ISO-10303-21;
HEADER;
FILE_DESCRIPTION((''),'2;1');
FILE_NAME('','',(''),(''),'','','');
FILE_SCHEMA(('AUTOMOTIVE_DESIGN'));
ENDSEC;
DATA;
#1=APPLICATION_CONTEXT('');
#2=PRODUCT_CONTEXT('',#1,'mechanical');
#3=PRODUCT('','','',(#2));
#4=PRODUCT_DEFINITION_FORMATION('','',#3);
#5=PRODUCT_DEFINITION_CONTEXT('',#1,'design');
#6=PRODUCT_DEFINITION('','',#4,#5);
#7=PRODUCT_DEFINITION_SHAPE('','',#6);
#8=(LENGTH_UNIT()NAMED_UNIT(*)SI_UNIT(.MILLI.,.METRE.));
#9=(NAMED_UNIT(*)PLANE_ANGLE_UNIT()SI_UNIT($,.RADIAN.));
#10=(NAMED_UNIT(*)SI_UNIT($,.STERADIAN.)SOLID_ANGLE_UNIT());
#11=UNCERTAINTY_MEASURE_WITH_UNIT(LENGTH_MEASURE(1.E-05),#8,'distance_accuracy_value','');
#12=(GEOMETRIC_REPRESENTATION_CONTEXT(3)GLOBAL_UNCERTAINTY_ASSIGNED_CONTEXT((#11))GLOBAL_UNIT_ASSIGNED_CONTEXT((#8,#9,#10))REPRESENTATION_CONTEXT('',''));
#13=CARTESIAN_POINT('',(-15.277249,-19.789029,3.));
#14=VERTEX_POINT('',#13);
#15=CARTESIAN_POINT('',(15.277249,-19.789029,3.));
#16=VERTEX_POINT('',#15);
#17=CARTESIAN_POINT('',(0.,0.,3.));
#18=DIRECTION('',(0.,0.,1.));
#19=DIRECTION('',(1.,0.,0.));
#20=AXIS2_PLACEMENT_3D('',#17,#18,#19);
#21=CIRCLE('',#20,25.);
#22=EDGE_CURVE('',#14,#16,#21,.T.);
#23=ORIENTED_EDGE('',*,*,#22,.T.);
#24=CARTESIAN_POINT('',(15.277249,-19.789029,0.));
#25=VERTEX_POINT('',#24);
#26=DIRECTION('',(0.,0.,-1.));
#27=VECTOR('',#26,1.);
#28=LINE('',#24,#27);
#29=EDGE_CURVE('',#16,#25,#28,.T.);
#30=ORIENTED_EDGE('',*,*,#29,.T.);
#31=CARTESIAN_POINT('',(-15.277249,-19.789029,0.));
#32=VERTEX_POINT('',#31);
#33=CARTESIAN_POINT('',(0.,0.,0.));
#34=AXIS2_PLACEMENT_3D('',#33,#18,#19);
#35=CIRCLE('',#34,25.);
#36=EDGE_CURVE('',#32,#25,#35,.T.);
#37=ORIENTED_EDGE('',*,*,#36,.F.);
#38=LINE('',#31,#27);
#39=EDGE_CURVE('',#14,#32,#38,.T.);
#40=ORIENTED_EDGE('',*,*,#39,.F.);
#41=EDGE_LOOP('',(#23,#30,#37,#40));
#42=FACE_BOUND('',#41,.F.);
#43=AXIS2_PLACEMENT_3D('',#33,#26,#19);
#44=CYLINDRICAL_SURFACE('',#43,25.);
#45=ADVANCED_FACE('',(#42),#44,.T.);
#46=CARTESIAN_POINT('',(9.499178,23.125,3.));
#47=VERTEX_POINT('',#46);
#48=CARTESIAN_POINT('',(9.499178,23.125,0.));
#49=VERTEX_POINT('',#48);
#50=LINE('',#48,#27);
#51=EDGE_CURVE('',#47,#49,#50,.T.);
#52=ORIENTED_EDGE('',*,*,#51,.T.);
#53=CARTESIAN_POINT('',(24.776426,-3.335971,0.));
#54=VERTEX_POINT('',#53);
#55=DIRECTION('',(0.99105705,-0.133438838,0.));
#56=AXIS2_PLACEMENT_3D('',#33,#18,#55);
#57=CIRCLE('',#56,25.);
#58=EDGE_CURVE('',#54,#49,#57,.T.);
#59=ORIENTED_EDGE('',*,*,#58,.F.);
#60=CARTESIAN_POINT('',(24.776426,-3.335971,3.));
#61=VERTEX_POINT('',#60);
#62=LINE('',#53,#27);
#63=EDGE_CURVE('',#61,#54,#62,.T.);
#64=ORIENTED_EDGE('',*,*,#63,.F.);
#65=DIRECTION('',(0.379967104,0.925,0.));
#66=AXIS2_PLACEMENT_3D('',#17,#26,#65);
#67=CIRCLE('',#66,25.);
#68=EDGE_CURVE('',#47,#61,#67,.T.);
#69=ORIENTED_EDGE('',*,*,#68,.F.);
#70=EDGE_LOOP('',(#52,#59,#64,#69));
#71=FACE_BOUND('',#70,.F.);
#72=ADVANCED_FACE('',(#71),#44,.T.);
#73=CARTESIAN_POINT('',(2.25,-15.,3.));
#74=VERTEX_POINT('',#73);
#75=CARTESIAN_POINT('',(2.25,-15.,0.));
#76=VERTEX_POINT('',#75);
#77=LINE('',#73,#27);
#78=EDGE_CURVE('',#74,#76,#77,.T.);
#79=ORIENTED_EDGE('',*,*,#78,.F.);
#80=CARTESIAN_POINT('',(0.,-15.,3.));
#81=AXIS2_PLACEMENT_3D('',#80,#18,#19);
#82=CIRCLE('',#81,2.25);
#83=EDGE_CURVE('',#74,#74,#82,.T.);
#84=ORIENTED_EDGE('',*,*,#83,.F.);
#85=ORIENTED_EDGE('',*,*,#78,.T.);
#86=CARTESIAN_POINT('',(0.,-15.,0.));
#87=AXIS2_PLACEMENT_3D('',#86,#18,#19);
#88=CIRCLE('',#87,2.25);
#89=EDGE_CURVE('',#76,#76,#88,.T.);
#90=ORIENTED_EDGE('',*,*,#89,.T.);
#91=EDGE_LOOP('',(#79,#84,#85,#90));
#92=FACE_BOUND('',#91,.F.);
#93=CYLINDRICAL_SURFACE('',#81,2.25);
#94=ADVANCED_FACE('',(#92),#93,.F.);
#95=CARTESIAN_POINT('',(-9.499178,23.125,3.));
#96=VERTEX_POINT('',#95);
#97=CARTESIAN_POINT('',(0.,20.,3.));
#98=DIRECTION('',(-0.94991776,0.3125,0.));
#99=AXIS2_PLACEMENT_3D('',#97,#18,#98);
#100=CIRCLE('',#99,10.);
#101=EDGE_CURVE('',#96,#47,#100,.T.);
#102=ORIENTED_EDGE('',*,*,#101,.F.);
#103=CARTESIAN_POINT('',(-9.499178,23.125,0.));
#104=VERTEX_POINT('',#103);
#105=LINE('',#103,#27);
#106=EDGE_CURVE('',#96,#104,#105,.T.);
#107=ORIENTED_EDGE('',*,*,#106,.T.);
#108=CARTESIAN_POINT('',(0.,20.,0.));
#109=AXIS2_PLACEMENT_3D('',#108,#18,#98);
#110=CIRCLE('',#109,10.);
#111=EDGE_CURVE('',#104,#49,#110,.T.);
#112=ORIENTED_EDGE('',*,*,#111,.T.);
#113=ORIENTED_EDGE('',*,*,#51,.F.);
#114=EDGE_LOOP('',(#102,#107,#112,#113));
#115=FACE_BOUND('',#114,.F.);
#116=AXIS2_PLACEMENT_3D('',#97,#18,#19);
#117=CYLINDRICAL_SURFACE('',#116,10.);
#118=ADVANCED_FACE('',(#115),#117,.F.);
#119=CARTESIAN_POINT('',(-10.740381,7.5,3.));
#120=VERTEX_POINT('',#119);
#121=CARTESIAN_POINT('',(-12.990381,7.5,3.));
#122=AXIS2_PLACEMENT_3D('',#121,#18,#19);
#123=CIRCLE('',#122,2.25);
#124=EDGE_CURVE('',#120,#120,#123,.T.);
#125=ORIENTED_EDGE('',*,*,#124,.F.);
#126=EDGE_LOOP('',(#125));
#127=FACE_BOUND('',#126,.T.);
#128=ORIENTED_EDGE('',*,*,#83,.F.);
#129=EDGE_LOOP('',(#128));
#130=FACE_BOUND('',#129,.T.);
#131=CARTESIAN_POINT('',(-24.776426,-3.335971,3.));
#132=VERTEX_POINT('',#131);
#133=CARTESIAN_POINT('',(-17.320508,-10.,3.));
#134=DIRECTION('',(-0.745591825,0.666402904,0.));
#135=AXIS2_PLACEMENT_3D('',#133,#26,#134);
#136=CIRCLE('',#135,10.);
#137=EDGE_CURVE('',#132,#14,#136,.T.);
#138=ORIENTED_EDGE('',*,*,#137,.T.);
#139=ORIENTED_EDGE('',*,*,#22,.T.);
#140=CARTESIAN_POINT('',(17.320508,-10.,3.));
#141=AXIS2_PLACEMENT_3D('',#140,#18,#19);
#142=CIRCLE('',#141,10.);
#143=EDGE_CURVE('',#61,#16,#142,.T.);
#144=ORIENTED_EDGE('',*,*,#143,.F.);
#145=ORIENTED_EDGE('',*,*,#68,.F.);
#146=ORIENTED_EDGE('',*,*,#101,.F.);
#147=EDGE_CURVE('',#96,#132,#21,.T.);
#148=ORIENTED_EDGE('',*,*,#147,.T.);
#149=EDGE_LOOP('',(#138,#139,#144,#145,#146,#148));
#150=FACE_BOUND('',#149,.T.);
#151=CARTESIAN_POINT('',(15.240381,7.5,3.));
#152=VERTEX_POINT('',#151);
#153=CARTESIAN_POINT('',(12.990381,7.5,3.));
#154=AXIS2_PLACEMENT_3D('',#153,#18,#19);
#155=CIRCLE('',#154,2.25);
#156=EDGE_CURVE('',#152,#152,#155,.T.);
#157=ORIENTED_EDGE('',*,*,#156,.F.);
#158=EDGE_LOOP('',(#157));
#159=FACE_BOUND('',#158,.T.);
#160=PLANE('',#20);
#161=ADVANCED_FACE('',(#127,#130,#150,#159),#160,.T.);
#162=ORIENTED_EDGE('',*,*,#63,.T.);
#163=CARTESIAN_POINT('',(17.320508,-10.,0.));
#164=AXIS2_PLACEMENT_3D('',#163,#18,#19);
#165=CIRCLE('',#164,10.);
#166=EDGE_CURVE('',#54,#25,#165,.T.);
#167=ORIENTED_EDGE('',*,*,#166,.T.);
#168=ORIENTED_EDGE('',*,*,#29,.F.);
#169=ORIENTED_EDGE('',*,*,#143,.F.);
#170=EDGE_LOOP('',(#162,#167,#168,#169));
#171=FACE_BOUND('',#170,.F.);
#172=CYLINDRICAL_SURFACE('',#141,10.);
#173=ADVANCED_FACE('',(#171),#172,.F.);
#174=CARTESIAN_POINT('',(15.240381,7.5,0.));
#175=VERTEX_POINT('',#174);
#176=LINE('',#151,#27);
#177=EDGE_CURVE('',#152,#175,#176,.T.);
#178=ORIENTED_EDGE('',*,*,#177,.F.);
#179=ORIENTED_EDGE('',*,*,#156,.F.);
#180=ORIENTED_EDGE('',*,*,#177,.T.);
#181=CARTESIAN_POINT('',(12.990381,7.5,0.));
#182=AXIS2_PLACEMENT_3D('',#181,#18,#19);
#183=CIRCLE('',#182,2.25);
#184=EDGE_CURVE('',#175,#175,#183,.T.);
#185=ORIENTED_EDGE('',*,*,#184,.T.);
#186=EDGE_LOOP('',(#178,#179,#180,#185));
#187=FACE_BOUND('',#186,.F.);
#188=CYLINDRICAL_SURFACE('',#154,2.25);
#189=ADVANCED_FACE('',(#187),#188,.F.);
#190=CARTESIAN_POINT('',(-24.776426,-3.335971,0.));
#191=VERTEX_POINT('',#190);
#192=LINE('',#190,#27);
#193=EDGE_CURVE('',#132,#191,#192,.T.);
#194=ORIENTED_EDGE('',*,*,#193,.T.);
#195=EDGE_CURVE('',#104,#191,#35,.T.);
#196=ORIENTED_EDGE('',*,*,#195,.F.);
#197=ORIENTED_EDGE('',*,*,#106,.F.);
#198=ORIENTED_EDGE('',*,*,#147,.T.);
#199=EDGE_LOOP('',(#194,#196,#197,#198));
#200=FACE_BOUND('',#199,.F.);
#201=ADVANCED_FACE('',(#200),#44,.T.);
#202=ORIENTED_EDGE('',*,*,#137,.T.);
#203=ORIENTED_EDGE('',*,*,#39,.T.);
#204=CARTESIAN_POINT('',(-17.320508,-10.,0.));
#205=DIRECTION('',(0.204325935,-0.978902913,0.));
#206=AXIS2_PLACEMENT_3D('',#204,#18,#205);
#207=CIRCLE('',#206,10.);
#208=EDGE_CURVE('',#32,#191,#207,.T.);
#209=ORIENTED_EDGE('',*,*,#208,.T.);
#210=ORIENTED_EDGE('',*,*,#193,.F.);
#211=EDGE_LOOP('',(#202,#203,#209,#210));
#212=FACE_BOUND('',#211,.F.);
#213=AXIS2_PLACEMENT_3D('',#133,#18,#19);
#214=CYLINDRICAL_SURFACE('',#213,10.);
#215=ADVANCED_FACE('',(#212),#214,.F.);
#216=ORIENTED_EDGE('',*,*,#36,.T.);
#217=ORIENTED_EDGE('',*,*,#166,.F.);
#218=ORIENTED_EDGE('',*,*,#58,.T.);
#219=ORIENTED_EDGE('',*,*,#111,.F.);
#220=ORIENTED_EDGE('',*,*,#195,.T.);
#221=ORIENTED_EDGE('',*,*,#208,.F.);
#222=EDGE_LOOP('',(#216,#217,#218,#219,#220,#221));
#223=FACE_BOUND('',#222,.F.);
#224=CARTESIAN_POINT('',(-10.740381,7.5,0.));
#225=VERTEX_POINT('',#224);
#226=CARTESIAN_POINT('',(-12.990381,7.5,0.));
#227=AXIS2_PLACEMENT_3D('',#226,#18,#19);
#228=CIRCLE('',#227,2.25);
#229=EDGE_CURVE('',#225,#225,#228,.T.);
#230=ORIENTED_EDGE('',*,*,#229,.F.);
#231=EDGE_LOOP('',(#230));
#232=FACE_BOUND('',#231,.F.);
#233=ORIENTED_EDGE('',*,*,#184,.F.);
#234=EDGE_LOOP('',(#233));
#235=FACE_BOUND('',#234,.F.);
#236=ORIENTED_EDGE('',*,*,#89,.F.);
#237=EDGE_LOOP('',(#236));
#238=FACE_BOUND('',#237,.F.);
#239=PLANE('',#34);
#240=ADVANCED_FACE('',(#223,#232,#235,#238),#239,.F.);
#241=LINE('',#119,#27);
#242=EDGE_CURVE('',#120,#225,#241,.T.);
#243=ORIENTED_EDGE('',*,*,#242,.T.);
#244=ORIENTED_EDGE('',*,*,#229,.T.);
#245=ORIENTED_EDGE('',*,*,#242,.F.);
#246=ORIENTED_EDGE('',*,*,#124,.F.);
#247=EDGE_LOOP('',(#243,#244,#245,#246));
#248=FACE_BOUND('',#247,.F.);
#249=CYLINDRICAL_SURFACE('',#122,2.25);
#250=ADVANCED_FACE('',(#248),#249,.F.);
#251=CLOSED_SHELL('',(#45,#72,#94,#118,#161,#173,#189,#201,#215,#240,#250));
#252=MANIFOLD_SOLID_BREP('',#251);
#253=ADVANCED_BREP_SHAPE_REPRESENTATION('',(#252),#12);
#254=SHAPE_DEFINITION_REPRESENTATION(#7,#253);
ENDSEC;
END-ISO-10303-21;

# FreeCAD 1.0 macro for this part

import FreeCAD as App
import Part
import Sketcher
Q = App.Units.Quantity

doc = App.newDocument("Part")
body = doc.addObject("PartDesign::Body", "Body")

# Sketch on XY plane
sketch1 = body.newObject("Sketcher::SketchObject", "Sketch")
sketch1.AttachmentSupport = (doc.getObject("XY_Plane"), [""])
sketch1.MapMode = "FlatFace"
sketch1.addGeometry(Part.Circle(App.Vector(0, 0, 0), App.Vector(0, 0, 1), 25), False)
sketch1.addConstraint(Sketcher.Constraint("Coincident", 0, 3, -1, 1))
sketch1.addConstraint(Sketcher.Constraint("Diameter", 0, Q("50 mm")))
pad1 = body.newObject("PartDesign::Pad", "Pad")
pad1.Profile = sketch1
pad1.Length = 3

# Sketch on XY plane
sketch2 = body.newObject("Sketcher::SketchObject", "Sketch001")
sketch2.AttachmentSupport = (doc.getObject("XY_Plane"), [""])
sketch2.MapMode = "FlatFace"
sketch2.AttachmentOffset = App.Placement(App.Vector(0, 0, 3), App.Rotation())
sketch2.addGeometry(Part.Circle(App.Vector(0, 15, 0), App.Vector(0, 0, 1), 2.25), False)
sketch2.addGeometry(Part.Circle(App.Vector(-12.990381, 7.5, 0), App.Vector(0, 0, 1), 2.25), False)
sketch2.addGeometry(Part.Circle(App.Vector(-12.990381, -7.5, 0), App.Vector(0, 0, 1), 2.25), False)
sketch2.addGeometry(Part.Circle(App.Vector(0, -15, 0), App.Vector(0, 0, 1), 2.25), False)
sketch2.addGeometry(Part.Circle(App.Vector(12.990381, -7.5, 0), App.Vector(0, 0, 1), 2.25), False)
sketch2.addGeometry(Part.Circle(App.Vector(12.990381, 7.5, 0), App.Vector(0, 0, 1), 2.25), False)
sketch2.addConstraint(Sketcher.Constraint("Equal", 0, 1))
sketch2.addConstraint(Sketcher.Constraint("Equal", 1, 2))
sketch2.addConstraint(Sketcher.Constraint("Equal", 2, 3))
sketch2.addConstraint(Sketcher.Constraint("Equal", 3, 4))
sketch2.addConstraint(Sketcher.Constraint("Equal", 4, 5))
sketch2.addConstraint(Sketcher.Constraint("Symmetric", 0, 3, 3, 3, -1, 1))
sketch2.addConstraint(Sketcher.Constraint("Symmetric", 1, 3, 4, 3, -1, 1))
sketch2.addConstraint(Sketcher.Constraint("Symmetric", 2, 3, 5, 3, -1, 1))
sketch2.addConstraint(Sketcher.Constraint("Symmetric", 2, 3, 4, 3, -2))
sketch2.addConstraint(Sketcher.Constraint("PointOnObject", 0, 3, -2))
sketch2.addConstraint(Sketcher.Constraint("Diameter", 0, Q("4.5 mm")))
sketch2.addConstraint(Sketcher.Constraint("DistanceY", -1, 1, 0, 3, Q("15 mm")))
sketch2.addConstraint(Sketcher.Constraint("DistanceY", 2, 3, 1, 3, Q("15 mm")))
sketch2.addConstraint(Sketcher.Constraint("DistanceX", 1, 3, -1, 1, Q("12.990381 mm")))
pocket1 = body.newObject("PartDesign::Pocket", "Pocket")
pocket1.Profile = sketch2
pocket1.Length = 25

# Sketch on XY plane
sketch3 = body.newObject("Sketcher::SketchObject", "Sketch002")
sketch3.AttachmentSupport = (doc.getObject("XY_Plane"), [""])
sketch3.MapMode = "FlatFace"
sketch3.AttachmentOffset = App.Placement(App.Vector(0, 0, 3), App.Rotation())
sketch3.addGeometry(Part.Circle(App.Vector(0, 20, 0), App.Vector(0, 0, 1), 10), False)
sketch3.addGeometry(Part.Circle(App.Vector(-17.320508, -10, 0), App.Vector(0, 0, 1), 10), False)
sketch3.addGeometry(Part.Circle(App.Vector(17.320508, -10, 0), App.Vector(0, 0, 1), 10), False)
sketch3.addConstraint(Sketcher.Constraint("Equal", 0, 1))
sketch3.addConstraint(Sketcher.Constraint("Equal", 1, 2))
sketch3.addConstraint(Sketcher.Constraint("Symmetric", 1, 3, 2, 3, -2))
sketch3.addConstraint(Sketcher.Constraint("PointOnObject", 0, 3, -2))
sketch3.addConstraint(Sketcher.Constraint("Diameter", 0, Q("20 mm")))
sketch3.addConstraint(Sketcher.Constraint("DistanceY", -1, 1, 0, 3, Q("20 mm")))
sketch3.addConstraint(Sketcher.Constraint("DistanceY", 1, 3, -1, 1, Q("10 mm")))
sketch3.addConstraint(Sketcher.Constraint("DistanceX", 1, 3, -1, 1, Q("17.320508 mm")))
pocket2 = body.newObject("PartDesign::Pocket", "Pocket001")
pocket2.Profile = sketch3
pocket2.Length = 25

doc.recompute()
